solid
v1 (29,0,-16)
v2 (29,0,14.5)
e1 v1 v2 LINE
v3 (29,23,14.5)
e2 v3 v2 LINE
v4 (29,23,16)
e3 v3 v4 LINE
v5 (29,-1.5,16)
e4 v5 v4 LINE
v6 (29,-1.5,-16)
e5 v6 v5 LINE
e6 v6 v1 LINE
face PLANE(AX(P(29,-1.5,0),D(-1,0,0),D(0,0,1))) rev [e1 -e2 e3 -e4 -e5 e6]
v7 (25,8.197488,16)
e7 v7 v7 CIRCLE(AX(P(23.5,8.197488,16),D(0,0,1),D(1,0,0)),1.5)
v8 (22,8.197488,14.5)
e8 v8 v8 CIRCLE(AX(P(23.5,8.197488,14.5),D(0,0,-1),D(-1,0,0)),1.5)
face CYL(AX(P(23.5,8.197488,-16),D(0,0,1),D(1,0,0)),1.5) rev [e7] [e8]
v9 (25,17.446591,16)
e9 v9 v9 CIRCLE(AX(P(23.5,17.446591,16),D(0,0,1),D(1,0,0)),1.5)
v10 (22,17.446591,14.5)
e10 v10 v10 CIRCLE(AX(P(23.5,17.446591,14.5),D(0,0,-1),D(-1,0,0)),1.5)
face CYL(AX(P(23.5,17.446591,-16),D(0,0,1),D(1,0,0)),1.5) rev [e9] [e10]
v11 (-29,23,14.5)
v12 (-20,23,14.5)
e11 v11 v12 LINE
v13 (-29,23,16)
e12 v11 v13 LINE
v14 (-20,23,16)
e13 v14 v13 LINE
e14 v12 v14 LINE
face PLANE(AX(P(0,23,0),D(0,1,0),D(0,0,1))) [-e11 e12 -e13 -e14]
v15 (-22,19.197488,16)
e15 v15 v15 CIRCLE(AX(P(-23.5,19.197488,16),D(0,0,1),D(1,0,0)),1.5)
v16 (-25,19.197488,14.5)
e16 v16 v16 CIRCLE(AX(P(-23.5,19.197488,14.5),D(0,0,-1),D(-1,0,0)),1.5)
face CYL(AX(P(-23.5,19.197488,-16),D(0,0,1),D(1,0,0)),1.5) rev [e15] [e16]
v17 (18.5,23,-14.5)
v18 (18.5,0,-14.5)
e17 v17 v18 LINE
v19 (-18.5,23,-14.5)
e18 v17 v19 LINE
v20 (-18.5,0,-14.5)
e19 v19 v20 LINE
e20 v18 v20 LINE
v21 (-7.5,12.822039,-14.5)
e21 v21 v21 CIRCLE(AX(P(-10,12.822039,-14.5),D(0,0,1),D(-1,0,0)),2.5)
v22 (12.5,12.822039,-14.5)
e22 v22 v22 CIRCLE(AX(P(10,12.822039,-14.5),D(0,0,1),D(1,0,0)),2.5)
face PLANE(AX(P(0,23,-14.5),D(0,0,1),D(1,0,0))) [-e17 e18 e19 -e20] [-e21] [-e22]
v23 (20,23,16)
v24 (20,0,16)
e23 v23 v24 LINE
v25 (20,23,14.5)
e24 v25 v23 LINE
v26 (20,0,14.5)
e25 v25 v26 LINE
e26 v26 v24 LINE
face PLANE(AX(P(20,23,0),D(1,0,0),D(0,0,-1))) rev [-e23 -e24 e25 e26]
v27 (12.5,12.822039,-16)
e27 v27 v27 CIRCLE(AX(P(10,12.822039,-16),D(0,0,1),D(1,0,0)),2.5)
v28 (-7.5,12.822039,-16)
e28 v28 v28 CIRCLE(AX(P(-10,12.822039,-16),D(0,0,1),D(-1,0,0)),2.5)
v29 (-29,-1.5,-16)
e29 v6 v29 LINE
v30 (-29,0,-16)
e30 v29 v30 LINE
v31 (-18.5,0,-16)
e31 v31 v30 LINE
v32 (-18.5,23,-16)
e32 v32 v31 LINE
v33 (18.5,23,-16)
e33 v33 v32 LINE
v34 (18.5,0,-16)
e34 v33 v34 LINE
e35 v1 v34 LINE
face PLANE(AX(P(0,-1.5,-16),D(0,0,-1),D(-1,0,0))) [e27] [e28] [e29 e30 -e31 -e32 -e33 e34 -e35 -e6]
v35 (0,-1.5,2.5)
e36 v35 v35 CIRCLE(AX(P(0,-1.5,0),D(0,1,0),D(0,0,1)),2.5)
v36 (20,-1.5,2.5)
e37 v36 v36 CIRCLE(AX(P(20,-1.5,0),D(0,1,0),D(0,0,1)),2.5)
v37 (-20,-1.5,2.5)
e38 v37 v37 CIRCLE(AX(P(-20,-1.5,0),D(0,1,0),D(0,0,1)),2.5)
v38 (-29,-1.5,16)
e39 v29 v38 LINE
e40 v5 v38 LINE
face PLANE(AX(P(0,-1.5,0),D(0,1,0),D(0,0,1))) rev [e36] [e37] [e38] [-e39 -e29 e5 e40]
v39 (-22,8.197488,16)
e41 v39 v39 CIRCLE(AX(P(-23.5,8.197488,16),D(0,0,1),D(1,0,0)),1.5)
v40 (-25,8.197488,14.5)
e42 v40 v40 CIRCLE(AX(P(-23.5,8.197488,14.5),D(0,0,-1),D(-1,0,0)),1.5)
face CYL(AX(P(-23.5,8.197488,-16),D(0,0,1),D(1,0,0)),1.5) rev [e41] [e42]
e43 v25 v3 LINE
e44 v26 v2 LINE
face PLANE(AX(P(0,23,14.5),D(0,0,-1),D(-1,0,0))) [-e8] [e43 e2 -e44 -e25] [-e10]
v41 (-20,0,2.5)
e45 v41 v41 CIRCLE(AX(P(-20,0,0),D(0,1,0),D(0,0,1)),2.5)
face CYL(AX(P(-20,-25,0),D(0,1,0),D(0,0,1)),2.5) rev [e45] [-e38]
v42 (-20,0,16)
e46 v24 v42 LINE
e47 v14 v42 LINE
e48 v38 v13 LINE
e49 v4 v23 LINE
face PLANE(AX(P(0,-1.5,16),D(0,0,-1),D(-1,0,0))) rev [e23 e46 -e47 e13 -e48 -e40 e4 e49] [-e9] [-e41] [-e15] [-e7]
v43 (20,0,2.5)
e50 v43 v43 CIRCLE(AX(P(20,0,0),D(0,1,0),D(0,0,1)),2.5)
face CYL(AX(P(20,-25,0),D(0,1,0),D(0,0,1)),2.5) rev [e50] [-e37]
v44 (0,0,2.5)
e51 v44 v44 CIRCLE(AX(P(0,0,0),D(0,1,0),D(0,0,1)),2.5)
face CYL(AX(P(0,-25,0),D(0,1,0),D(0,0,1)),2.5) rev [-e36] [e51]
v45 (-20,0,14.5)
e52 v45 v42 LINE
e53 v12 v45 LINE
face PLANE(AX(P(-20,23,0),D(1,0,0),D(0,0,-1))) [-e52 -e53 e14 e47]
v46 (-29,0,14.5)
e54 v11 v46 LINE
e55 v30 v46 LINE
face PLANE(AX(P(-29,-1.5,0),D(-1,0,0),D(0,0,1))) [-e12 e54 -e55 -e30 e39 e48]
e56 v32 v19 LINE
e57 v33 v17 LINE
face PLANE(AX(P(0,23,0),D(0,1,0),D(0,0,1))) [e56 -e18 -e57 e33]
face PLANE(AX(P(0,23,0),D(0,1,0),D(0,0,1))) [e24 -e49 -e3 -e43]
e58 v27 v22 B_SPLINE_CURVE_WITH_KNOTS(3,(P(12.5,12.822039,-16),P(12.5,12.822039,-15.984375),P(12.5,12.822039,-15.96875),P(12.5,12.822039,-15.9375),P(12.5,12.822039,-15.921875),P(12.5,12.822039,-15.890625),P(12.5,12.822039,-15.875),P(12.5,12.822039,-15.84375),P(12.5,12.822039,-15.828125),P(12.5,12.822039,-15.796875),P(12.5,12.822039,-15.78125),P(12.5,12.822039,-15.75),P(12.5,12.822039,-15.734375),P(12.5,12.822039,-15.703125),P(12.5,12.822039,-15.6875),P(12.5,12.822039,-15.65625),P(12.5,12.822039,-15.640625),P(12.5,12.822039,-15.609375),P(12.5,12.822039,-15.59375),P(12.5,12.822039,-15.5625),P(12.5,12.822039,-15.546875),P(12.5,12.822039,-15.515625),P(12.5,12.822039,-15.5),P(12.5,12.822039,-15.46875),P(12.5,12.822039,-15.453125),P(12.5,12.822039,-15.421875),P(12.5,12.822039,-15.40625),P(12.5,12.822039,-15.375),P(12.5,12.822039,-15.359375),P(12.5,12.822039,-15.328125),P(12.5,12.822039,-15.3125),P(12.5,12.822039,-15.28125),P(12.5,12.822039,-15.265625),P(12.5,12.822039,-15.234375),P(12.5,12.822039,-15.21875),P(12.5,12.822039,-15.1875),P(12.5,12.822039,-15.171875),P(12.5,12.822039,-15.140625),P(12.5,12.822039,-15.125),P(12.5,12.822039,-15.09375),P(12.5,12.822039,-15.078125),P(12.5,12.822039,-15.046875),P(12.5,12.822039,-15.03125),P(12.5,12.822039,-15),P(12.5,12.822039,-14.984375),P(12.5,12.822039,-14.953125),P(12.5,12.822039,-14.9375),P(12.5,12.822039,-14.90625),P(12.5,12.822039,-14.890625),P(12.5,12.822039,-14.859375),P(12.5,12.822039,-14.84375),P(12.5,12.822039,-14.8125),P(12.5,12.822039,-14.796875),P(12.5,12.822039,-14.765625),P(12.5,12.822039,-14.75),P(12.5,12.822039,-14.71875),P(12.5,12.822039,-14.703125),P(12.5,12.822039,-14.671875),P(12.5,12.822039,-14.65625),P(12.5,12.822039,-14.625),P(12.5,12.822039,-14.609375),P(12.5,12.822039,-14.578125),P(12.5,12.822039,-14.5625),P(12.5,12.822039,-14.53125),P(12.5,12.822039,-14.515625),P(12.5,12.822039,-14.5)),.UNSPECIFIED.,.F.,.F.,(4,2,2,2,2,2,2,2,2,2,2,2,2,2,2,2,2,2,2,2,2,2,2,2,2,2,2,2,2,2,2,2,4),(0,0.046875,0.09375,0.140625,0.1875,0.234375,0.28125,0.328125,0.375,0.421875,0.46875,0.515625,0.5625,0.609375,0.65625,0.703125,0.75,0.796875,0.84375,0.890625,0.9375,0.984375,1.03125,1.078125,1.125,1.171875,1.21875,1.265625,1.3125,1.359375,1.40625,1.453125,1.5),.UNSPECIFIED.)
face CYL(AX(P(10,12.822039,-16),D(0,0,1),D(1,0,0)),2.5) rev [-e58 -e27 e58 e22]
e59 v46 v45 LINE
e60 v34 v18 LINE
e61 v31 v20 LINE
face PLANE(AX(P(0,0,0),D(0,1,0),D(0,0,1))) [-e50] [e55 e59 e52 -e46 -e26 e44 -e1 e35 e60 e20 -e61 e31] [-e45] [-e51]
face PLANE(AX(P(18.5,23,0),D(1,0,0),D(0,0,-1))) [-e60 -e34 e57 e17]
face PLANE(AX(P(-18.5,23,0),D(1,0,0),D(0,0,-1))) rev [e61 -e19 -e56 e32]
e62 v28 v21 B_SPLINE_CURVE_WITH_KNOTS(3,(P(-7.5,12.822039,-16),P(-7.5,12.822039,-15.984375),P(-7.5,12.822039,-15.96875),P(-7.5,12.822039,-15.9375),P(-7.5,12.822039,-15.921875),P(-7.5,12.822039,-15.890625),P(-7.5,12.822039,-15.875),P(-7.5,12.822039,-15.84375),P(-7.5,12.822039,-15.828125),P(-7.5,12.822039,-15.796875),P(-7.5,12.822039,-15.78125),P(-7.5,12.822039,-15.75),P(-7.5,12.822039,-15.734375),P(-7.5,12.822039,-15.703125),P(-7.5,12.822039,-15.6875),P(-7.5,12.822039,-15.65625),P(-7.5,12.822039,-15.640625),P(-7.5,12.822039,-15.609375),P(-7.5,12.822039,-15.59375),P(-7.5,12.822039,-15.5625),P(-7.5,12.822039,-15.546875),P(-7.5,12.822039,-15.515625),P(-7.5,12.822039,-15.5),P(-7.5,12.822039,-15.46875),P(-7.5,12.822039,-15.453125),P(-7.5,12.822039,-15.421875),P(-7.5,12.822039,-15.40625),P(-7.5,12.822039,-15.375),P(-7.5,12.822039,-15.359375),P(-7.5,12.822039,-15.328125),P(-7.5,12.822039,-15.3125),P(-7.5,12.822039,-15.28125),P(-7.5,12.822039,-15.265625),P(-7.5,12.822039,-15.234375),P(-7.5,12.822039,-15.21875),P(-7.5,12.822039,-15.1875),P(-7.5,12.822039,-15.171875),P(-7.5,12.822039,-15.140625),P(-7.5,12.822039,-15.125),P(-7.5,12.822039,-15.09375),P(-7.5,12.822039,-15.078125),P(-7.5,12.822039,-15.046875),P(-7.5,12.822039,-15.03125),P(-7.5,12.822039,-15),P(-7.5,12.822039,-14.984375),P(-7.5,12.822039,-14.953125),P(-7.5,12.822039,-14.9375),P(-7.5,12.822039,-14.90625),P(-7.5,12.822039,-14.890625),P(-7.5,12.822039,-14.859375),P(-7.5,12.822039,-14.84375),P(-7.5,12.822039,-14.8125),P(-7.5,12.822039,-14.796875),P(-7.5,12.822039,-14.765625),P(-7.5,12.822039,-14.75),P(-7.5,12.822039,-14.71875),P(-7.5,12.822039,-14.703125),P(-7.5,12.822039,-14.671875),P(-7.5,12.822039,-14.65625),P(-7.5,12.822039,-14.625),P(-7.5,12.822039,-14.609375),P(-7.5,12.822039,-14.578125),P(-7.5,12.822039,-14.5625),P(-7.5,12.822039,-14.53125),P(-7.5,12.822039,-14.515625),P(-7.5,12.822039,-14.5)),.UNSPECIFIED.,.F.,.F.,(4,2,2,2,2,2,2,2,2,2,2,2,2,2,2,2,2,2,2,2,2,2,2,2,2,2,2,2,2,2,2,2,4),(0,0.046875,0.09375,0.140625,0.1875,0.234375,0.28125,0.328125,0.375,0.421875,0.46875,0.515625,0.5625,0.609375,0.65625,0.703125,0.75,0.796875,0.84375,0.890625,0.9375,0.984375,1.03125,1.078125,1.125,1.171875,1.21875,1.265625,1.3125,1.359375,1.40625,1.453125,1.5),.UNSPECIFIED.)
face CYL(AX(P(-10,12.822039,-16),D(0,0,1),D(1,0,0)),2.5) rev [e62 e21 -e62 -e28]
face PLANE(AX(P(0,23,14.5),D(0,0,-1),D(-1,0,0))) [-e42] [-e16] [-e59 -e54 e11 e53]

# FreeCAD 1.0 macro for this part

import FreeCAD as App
import Part
import Sketcher
from FreeCAD import Vector


def add_polygon(sketch, points):
    """Adds a closed chain of lines whose ends are joined by coincident constraints."""
    first, n = sketch.GeometryCount, len(points)
    for a, b in zip(points, points[1:] + points[:1]):
        sketch.addGeometry(Part.LineSegment(App.Vector(*a, 0), App.Vector(*b, 0)), False)
    for i in range(n):
        sketch.addConstraint(Sketcher.Constraint("Coincident", first + i, 2, first + (i + 1) % n, 1))

doc = App.newDocument("Part")
body = doc.addObject("PartDesign::Body", "Body")

# Sketch on XZ plane
sketch1 = body.newObject("Sketcher::SketchObject", "Sketch")
sketch1.AttachmentSupport = (doc.getObject("XZ_Plane"), [""])
sketch1.MapMode = "FlatFace"
add_polygon(sketch1, [(-29, -16), (-29, 16), (29, 16), (29, -16)])  # lines 0-3
sketch1.addConstraint([
    Sketcher.Constraint("Vertical", 0),
    Sketcher.Constraint("Horizontal", 1),
    Sketcher.Constraint("Vertical", 2),
    Sketcher.Constraint("Horizontal", 3),
    Sketcher.Constraint("Symmetric", 0, 2, 2, 2, -1, 1),
    Sketcher.Constraint("DistanceX", 1, 1, 1, 2, 58.0),
    Sketcher.Constraint("DistanceY", 0, 1, 0, 2, 32.0),
])
pad1 = body.newObject("PartDesign::Pad", "Pad")
pad1.Profile = sketch1
pad1.Length = 1.5

# Sketch on XZ plane
sketch2 = body.newObject("Sketcher::SketchObject", "Sketch001")
sketch2.AttachmentSupport = (doc.getObject("XZ_Plane"), [""])
sketch2.MapMode = "FlatFace"
add_polygon(sketch2, [(-29, 14.5), (-29, 16), (-20, 16), (-20, 14.5)])  # lines 0-3
add_polygon(sketch2, [(20, 14.5), (20, 16), (29, 16), (29, 14.5)])  # lines 4-7
sketch2.addConstraint([
    Sketcher.Constraint("Vertical", 0),
    Sketcher.Constraint("Horizontal", 1),
    Sketcher.Constraint("Vertical", 2),
    Sketcher.Constraint("Horizontal", 3),
    Sketcher.Constraint("Vertical", 4),
    Sketcher.Constraint("Horizontal", 5),
    Sketcher.Constraint("Vertical", 6),
    Sketcher.Constraint("Horizontal", 7),
    Sketcher.Constraint("Symmetric", 1, 2, 4, 2, -2),
    Sketcher.Constraint("Symmetric", 3, 2, 6, 2, -2),
    Sketcher.Constraint("DistanceX", 1, 1, 1, 2, 9.0),
    Sketcher.Constraint("DistanceY", 0, 1, 0, 2, 1.5),
    Sketcher.Constraint("DistanceX", 0, 2, -1, 1, 29.0),
    Sketcher.Constraint("DistanceY", -1, 1, 0, 2, 16.0),
])
pad2 = body.newObject("PartDesign::Pad", "Pad001")
pad2.Profile = sketch2
pad2.Length = 23
pad2.Reversed = True

# Sketch on XY plane
sketch3 = body.newObject("Sketcher::SketchObject", "Sketch002")
sketch3.AttachmentSupport = (doc.getObject("XY_Plane"), [""])
sketch3.MapMode = "FlatFace"
sketch3.AttachmentOffset = App.Placement(Vector(0, 0, 16), App.Rotation())
sketch3.addGeometry([
    Part.Circle(Vector(-23.5, 19.197488, 0), Vector(0, 0, 1), 1.5),
    Part.Circle(Vector(-23.5, 8.197488, 0), Vector(0, 0, 1), 1.5),
    Part.Circle(Vector(23.5, 17.446591, 0), Vector(0, 0, 1), 1.5),
    Part.Circle(Vector(23.5, 8.197488, 0), Vector(0, 0, 1), 1.5),
], False)
sketch3.addConstraint([
    Sketcher.Constraint("Equal", 0, 1),
    Sketcher.Constraint("Equal", 1, 2),
    Sketcher.Constraint("Equal", 2, 3),
    Sketcher.Constraint("Symmetric", 1, 3, 3, 3, -2),
    Sketcher.Constraint("Vertical", 0, 3, 1, 3),
    Sketcher.Constraint("Vertical", 2, 3, 3, 3),
    Sketcher.Constraint("Diameter", 0, 3.0),
    Sketcher.Constraint("DistanceY", 1, 3, 0, 3, 11.0),
    Sketcher.Constraint("DistanceX", 0, 3, 2, 3, 47.0),
    Sketcher.Constraint("DistanceY", -1, 1, 2, 3, 17.446591),
    Sketcher.Constraint("DistanceY", -1, 1, 0, 3, 19.197488),
])
pocket1 = body.newObject("PartDesign::Pocket", "Pocket")
pocket1.Profile = sketch3
pocket1.Type = "ThroughAll"

# Sketch on XZ plane
sketch4 = body.newObject("Sketcher::SketchObject", "Sketch003")
sketch4.AttachmentSupport = (doc.getObject("XZ_Plane"), [""])
sketch4.MapMode = "FlatFace"
add_polygon(sketch4, [(-18.5, -16), (-18.5, -14.5), (18.5, -14.5), (18.5, -16)])  # lines 0-3
sketch4.addConstraint([
    Sketcher.Constraint("Vertical", 0),
    Sketcher.Constraint("Horizontal", 1),
    Sketcher.Constraint("Vertical", 2),
    Sketcher.Constraint("Horizontal", 3),
    Sketcher.Constraint("DistanceX", 1, 1, 1, 2, 37.0),
    Sketcher.Constraint("DistanceY", 0, 1, 0, 2, 1.5),
    Sketcher.Constraint("DistanceY", 2, 2, -1, 1, 16.0),
    Sketcher.Constraint("DistanceX", 0, 2, -1, 1, 18.5),
])
pad3 = body.newObject("PartDesign::Pad", "Pad002")
pad3.Profile = sketch4
pad3.Length = 23
pad3.Reversed = True

# Sketch on XY plane
sketch5 = body.newObject("Sketcher::SketchObject", "Sketch004")
sketch5.AttachmentSupport = (doc.getObject("XY_Plane"), [""])
sketch5.MapMode = "FlatFace"
sketch5.AttachmentOffset = App.Placement(Vector(0, 0, -14.5), App.Rotation())
sketch5.addGeometry([
    Part.Circle(Vector(10, 12.822039, 0), Vector(0, 0, 1), 2.5),
    Part.Circle(Vector(-10, 12.822039, 0), Vector(0, 0, 1), 2.5),
], False)
sketch5.addConstraint([
    Sketcher.Constraint("Equal", 0, 1),
    Sketcher.Constraint("Symmetric", 0, 3, 1, 3, -2),
    Sketcher.Constraint("Diameter", 0, 5.0),
    Sketcher.Constraint("DistanceX", -1, 1, 0, 3, 10.0),
    Sketcher.Constraint("DistanceY", -1, 1, 0, 3, 12.822039),
])
pocket2 = body.newObject("PartDesign::Pocket", "Pocket001")
pocket2.Profile = sketch5
pocket2.Type = "ThroughAll"

# Sketch on XZ plane
sketch6 = body.newObject("Sketcher::SketchObject", "Sketch005")
sketch6.AttachmentSupport = (doc.getObject("XZ_Plane"), [""])
sketch6.MapMode = "FlatFace"
sketch6.addGeometry([
    Part.Circle(Vector(20, 0, 0), Vector(0, 0, 1), 2.5),
    Part.Circle(Vector(0, 0, 0), Vector(0, 0, 1), 2.5),
    Part.Circle(Vector(-20, 0, 0), Vector(0, 0, 1), 2.5),
], False)
sketch6.addConstraint([
    Sketcher.Constraint("Coincident", 1, 3, -1, 1),
    Sketcher.Constraint("Equal", 0, 1),
    Sketcher.Constraint("Equal", 1, 2),
    Sketcher.Constraint("Symmetric", 0, 3, 2, 3, -1, 1),
    Sketcher.Constraint("PointOnObject", 0, 3, -1),
    Sketcher.Constraint("Diameter", 0, 5.0),
    Sketcher.Constraint("DistanceX", -1, 1, 0, 3, 20.0),
])
pocket3 = body.newObject("PartDesign::Pocket", "Pocket002")
pocket3.Profile = sketch6
pocket3.Length = 25
pocket3.Reversed = True

doc.recompute()
